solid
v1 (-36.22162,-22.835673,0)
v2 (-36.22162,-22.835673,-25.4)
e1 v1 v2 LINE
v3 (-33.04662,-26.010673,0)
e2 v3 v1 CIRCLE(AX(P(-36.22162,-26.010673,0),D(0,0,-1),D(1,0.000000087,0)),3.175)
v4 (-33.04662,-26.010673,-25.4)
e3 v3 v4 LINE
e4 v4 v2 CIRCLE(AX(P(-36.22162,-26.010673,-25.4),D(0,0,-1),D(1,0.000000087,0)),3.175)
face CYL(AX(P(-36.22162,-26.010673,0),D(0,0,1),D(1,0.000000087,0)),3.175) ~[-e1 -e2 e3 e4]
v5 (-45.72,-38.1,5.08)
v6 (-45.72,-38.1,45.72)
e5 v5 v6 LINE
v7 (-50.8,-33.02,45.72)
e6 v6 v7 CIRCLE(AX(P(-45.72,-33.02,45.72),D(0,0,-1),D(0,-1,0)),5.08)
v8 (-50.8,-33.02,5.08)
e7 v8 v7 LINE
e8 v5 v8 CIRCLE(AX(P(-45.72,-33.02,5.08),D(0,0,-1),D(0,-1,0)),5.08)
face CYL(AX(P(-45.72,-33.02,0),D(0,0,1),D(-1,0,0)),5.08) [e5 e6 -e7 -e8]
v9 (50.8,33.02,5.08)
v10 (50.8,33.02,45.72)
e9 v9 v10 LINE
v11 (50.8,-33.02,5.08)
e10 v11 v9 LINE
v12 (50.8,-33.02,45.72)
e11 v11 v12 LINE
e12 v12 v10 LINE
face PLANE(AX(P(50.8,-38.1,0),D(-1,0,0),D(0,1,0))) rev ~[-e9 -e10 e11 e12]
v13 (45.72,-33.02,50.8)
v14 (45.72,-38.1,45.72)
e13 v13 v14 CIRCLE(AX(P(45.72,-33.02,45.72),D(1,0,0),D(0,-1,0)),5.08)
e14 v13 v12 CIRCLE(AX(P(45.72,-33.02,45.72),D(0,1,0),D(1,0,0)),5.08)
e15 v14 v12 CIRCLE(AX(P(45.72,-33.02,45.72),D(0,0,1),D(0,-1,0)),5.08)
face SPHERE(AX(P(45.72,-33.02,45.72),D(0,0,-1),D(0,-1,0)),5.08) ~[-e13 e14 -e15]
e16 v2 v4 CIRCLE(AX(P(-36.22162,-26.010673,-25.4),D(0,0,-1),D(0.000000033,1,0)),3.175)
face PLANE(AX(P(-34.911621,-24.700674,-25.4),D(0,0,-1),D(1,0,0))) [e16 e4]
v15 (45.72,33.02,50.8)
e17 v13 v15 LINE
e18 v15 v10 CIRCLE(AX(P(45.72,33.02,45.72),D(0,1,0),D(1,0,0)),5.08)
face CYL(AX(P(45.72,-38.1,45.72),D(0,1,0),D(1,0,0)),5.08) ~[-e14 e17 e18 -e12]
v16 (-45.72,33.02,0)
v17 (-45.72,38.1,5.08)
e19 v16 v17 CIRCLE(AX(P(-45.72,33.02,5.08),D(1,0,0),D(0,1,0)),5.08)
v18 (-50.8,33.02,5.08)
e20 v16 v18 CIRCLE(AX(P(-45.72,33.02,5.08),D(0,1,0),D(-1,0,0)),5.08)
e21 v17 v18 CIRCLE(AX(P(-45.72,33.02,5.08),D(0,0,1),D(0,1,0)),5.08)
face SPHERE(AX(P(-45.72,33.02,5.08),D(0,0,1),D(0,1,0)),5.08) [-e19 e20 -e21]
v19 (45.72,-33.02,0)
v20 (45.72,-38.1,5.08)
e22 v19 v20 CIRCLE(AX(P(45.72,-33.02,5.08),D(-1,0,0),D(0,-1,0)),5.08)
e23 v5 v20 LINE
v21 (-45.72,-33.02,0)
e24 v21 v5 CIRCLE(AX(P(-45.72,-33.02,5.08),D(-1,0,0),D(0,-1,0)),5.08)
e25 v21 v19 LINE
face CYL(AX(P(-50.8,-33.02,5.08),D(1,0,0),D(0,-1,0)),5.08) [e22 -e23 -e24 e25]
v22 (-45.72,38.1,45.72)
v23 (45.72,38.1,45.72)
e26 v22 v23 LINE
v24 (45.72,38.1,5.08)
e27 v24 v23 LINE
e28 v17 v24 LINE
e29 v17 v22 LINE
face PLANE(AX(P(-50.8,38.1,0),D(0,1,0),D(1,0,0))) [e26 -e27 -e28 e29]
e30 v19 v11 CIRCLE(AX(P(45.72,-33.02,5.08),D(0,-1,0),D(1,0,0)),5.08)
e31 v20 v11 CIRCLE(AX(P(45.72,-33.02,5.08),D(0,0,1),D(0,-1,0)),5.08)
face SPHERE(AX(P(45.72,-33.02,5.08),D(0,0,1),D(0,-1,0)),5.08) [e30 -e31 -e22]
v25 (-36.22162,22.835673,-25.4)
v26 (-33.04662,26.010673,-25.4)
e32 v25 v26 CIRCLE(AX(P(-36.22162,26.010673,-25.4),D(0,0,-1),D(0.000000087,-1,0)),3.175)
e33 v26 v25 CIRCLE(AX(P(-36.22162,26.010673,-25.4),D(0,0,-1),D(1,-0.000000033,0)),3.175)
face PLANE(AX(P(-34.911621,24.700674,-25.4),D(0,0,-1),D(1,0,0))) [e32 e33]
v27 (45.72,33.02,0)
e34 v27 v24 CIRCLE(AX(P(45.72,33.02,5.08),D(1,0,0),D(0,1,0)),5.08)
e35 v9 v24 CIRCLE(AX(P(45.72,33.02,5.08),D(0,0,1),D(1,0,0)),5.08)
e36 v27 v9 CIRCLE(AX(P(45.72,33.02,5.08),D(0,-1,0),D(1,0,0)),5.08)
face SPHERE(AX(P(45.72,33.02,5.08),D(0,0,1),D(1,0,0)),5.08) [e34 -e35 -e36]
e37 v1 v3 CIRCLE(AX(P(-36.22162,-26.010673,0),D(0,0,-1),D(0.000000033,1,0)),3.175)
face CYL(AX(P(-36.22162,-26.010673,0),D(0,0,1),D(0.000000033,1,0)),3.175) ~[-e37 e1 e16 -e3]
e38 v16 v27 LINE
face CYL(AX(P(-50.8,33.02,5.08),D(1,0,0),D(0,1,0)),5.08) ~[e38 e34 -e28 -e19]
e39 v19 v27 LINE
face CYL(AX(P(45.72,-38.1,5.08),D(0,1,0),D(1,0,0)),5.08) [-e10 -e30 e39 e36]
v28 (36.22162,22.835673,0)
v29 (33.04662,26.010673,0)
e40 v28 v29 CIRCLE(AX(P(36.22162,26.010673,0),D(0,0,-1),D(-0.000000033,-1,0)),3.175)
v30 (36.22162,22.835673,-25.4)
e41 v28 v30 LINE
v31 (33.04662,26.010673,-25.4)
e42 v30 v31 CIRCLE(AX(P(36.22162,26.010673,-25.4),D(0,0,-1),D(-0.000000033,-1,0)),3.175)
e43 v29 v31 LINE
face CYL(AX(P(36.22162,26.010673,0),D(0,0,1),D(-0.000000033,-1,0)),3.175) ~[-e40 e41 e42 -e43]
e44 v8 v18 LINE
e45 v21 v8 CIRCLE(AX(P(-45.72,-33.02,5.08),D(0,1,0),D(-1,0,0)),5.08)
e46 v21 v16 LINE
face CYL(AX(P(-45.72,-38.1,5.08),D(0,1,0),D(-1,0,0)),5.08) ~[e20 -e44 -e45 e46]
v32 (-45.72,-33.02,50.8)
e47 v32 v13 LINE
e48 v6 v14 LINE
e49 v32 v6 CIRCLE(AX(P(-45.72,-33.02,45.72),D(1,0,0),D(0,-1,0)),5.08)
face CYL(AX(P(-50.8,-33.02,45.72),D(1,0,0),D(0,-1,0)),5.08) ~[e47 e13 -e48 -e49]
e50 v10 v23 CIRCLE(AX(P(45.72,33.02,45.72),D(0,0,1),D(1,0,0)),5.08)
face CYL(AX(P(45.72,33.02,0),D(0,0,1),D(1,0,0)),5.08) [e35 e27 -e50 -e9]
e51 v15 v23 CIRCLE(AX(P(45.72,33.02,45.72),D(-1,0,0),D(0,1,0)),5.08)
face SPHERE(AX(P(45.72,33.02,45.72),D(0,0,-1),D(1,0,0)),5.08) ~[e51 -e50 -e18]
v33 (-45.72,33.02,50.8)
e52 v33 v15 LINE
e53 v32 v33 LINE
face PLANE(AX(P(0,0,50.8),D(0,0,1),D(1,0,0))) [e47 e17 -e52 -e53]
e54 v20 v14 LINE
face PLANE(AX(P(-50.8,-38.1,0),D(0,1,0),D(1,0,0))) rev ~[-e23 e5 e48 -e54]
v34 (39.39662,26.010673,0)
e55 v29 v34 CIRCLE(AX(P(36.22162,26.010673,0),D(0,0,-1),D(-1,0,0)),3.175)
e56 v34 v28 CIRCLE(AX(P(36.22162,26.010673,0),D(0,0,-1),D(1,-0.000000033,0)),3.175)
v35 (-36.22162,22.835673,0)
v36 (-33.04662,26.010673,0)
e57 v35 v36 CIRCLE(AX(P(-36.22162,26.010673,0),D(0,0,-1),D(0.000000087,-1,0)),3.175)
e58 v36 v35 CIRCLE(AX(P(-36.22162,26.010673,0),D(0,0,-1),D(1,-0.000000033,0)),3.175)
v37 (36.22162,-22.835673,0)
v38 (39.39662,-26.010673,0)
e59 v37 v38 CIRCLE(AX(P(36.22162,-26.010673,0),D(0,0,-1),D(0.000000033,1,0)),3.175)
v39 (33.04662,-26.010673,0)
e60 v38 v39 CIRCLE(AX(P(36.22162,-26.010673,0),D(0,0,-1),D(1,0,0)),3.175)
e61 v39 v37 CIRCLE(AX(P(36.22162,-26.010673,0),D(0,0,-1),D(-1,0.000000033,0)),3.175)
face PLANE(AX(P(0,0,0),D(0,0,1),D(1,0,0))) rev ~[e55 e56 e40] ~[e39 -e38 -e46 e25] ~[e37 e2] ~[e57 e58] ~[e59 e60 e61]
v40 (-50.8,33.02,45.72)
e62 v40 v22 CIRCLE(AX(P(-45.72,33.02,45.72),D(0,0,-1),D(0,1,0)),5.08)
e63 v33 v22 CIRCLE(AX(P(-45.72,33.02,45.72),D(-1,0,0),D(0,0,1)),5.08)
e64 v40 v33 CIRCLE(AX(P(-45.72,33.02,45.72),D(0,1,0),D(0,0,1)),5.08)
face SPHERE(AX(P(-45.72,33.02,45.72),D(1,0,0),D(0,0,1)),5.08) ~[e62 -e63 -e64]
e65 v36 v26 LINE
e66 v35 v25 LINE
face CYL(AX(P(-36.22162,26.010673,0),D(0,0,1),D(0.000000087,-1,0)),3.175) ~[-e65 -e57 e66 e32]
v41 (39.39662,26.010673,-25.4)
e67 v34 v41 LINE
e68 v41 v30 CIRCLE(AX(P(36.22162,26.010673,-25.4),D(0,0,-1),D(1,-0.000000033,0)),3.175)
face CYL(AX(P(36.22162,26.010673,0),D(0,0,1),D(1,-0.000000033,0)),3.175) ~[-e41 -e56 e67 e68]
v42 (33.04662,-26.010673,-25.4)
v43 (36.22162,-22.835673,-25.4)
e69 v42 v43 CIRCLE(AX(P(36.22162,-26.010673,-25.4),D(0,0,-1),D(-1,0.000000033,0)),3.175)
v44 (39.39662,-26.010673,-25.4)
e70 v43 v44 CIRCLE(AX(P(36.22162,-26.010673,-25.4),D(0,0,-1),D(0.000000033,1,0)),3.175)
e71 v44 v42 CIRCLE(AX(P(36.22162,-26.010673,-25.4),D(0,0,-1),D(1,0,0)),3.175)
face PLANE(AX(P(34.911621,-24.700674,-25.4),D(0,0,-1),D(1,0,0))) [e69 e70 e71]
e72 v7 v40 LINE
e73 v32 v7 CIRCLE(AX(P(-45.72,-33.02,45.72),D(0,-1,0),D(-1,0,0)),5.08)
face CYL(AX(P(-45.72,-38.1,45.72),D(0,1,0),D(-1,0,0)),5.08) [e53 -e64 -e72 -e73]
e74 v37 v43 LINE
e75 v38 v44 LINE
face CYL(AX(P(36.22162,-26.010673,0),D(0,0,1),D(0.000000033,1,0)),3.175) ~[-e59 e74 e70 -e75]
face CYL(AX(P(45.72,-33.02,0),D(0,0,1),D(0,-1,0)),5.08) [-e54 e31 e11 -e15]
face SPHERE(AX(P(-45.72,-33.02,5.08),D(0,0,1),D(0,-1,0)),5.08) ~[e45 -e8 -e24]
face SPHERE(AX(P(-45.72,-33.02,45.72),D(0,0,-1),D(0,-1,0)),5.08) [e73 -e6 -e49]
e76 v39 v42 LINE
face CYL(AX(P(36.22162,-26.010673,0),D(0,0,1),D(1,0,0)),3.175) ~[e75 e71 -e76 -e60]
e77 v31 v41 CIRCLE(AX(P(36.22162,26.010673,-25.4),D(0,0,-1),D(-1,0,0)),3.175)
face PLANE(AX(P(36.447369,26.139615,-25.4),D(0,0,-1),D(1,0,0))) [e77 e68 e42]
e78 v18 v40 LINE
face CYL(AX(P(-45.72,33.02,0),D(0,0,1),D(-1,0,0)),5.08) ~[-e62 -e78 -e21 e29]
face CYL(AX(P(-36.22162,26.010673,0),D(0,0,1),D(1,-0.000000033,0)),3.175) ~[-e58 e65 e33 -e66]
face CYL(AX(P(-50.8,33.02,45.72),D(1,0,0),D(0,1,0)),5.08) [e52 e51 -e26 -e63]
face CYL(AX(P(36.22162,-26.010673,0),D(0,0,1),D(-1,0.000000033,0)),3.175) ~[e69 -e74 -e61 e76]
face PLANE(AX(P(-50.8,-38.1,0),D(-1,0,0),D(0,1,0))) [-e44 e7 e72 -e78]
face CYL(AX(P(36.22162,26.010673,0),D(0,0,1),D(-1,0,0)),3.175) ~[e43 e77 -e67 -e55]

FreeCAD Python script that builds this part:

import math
import FreeCAD as App
import Part
import Sketcher

V = App.Vector
Q = App.Units.Quantity

doc = App.newDocument("Part")
body = doc.addObject("PartDesign::Body", "Body")

# Sketch on XY plane
sketch1 = body.newObject("Sketcher::SketchObject", "Sketch")
sketch1.AttachmentSupport = (doc.getObject("XY_Plane"), [""])
sketch1.MapMode = "FlatFace"
sketch1.addGeometry([
    Part.LineSegment(V(-51, 38, 0), V(-51, -38, 0)),
    Part.LineSegment(V(-51, -38, 0), V(51, -38, 0)),
    Part.LineSegment(V(51, -38, 0), V(51, 38, 0)),
    Part.LineSegment(V(51, 38, 0), V(-51, 38, 0)),
], False)
sketch1.addConstraint([
    Sketcher.Constraint("Coincident", 0, 2, 1, 1),
    Sketcher.Constraint("Coincident", 1, 2, 2, 1),
    Sketcher.Constraint("Coincident", 2, 2, 3, 1),
    Sketcher.Constraint("Coincident", 3, 2, 0, 1),
    Sketcher.Constraint("Vertical", 0),
    Sketcher.Constraint("Horizontal", 1),
    Sketcher.Constraint("Vertical", 2),
    Sketcher.Constraint("Horizontal", 3),
    Sketcher.Constraint("Symmetric", 0, 2, 2, 2, -1, 1),
    Sketcher.Constraint("DistanceX", 1, 1, 1, 2, Q("4 in")),
    Sketcher.Constraint("DistanceY", 0, 2, 0, 1, Q("3 in")),
])
pad1 = body.newObject("PartDesign::Pad", "Pad")
pad1.Profile = sketch1
pad1.Length = Q("2 in")
doc.recompute()

fillet = body.newObject("PartDesign::Fillet", "Fillet")
fillet.Base = (pad1, ["Edge1"])
fillet.UseAllEdges = True
fillet.Radius = Q("0.2 in")

# Sketch on XY plane
sketch2 = body.newObject("Sketcher::SketchObject", "Sketch001")
sketch2.AttachmentSupport = (doc.getObject("XY_Plane"), [""])
sketch2.MapMode = "FlatFace"
sketch2.addGeometry([
    Part.ArcOfCircle(Part.Circle(V(36.2, 26, 0), V(0, 0, 1), 3.2), math.radians(0), math.radians(180)),  # 0
    Part.ArcOfCircle(Part.Circle(V(36.2, 26, 0), V(0, 0, 1), 3.2), math.radians(-90), math.radians(0)),  # 1
    Part.ArcOfCircle(Part.Circle(V(36.2, 26, 0), V(0, 0, 1), 3.2), math.radians(-180), math.radians(-90)),  # 2
    Part.ArcOfCircle(Part.Circle(V(36.2, -26, 0), V(0, 0, 1), 3.2), math.radians(90), math.radians(180)),  # 3
    Part.ArcOfCircle(Part.Circle(V(36.2, -26, 0), V(0, 0, 1), 3.2), math.radians(0), math.radians(90)),  # 4
    Part.ArcOfCircle(Part.Circle(V(36.2, -26, 0), V(0, 0, 1), 3.2), math.radians(180), math.radians(360)),  # 5
    Part.ArcOfCircle(Part.Circle(V(-36.2, -26, 0), V(0, 0, 1), 3.2), math.radians(0), math.radians(90)),  # 6
    Part.ArcOfCircle(Part.Circle(V(-36.2, -26, 0), V(0, 0, 1), 3.2), math.radians(90), math.radians(360)),  # 7
    Part.ArcOfCircle(Part.Circle(V(-36.2, 26, 0), V(0, 0, 1), 3.2), math.radians(-90), math.radians(0)),  # 8
    Part.ArcOfCircle(Part.Circle(V(-36.2, 26, 0), V(0, 0, 1), 3.2), math.radians(0), math.radians(270)),  # 9
], False)
sketch2.addConstraint([
    Sketcher.Constraint("Tangent", 0, 1, 1, 2),
    Sketcher.Constraint("Tangent", 1, 1, 2, 2),
    Sketcher.Constraint("Tangent", 2, 1, 0, 2),
    Sketcher.Constraint("Tangent", 3, 1, 4, 2),
    Sketcher.Constraint("Tangent", 4, 1, 5, 2),
    Sketcher.Constraint("Tangent", 5, 1, 3, 2),
    Sketcher.Constraint("Tangent", 6, 1, 7, 2),
    Sketcher.Constraint("Coincident", 7, 1, 6, 2),
    Sketcher.Constraint("Tangent", 8, 1, 9, 2),
    Sketcher.Constraint("Coincident", 9, 1, 8, 2),
    Sketcher.Constraint("Equal", 2, 3),
    Sketcher.Constraint("Equal", 5, 6),
    Sketcher.Constraint("Equal", 7, 8),
    Sketcher.Constraint("Symmetric", 0, 3, 6, 3, -1, 1),
    Sketcher.Constraint("Symmetric", 3, 3, 8, 3, -1, 1),
    Sketcher.Constraint("Symmetric", 3, 3, 6, 3, -2),
    Sketcher.Constraint("Horizontal", 9, 3, 0, 1),
    Sketcher.Constraint("Horizontal", 0, 1, 2, 1),
    Sketcher.Constraint("Horizontal", 7, 3, 4, 1),
    Sketcher.Constraint("Horizontal", 4, 1, 5, 1),
    Sketcher.Constraint("Horizontal", 5, 1, 6, 1),
    Sketcher.Constraint("Horizontal", 2, 1, 9, 1),
    Sketcher.Constraint("Vertical", 5, 3, 1, 1),
    Sketcher.Constraint("Vertical", 1, 1, 3, 1),
    Sketcher.Constraint("Vertical", 9, 3, 7, 1),
    Sketcher.Constraint("Vertical", 7, 1, 8, 1),
    Sketcher.Constraint("Radius", 0, Q("0.125 in")),
    Sketcher.Constraint("DistanceX", -1, 1, 0, 3, Q("36.22162 mm")),
    Sketcher.Constraint("DistanceY", -1, 1, 0, 3, Q("26.010673 mm")),
])
pad2 = body.newObject("PartDesign::Pad", "Pad001")
pad2.Profile = sketch2
pad2.Length = Q("1 in")
pad2.Reversed = True

doc.recompute()
